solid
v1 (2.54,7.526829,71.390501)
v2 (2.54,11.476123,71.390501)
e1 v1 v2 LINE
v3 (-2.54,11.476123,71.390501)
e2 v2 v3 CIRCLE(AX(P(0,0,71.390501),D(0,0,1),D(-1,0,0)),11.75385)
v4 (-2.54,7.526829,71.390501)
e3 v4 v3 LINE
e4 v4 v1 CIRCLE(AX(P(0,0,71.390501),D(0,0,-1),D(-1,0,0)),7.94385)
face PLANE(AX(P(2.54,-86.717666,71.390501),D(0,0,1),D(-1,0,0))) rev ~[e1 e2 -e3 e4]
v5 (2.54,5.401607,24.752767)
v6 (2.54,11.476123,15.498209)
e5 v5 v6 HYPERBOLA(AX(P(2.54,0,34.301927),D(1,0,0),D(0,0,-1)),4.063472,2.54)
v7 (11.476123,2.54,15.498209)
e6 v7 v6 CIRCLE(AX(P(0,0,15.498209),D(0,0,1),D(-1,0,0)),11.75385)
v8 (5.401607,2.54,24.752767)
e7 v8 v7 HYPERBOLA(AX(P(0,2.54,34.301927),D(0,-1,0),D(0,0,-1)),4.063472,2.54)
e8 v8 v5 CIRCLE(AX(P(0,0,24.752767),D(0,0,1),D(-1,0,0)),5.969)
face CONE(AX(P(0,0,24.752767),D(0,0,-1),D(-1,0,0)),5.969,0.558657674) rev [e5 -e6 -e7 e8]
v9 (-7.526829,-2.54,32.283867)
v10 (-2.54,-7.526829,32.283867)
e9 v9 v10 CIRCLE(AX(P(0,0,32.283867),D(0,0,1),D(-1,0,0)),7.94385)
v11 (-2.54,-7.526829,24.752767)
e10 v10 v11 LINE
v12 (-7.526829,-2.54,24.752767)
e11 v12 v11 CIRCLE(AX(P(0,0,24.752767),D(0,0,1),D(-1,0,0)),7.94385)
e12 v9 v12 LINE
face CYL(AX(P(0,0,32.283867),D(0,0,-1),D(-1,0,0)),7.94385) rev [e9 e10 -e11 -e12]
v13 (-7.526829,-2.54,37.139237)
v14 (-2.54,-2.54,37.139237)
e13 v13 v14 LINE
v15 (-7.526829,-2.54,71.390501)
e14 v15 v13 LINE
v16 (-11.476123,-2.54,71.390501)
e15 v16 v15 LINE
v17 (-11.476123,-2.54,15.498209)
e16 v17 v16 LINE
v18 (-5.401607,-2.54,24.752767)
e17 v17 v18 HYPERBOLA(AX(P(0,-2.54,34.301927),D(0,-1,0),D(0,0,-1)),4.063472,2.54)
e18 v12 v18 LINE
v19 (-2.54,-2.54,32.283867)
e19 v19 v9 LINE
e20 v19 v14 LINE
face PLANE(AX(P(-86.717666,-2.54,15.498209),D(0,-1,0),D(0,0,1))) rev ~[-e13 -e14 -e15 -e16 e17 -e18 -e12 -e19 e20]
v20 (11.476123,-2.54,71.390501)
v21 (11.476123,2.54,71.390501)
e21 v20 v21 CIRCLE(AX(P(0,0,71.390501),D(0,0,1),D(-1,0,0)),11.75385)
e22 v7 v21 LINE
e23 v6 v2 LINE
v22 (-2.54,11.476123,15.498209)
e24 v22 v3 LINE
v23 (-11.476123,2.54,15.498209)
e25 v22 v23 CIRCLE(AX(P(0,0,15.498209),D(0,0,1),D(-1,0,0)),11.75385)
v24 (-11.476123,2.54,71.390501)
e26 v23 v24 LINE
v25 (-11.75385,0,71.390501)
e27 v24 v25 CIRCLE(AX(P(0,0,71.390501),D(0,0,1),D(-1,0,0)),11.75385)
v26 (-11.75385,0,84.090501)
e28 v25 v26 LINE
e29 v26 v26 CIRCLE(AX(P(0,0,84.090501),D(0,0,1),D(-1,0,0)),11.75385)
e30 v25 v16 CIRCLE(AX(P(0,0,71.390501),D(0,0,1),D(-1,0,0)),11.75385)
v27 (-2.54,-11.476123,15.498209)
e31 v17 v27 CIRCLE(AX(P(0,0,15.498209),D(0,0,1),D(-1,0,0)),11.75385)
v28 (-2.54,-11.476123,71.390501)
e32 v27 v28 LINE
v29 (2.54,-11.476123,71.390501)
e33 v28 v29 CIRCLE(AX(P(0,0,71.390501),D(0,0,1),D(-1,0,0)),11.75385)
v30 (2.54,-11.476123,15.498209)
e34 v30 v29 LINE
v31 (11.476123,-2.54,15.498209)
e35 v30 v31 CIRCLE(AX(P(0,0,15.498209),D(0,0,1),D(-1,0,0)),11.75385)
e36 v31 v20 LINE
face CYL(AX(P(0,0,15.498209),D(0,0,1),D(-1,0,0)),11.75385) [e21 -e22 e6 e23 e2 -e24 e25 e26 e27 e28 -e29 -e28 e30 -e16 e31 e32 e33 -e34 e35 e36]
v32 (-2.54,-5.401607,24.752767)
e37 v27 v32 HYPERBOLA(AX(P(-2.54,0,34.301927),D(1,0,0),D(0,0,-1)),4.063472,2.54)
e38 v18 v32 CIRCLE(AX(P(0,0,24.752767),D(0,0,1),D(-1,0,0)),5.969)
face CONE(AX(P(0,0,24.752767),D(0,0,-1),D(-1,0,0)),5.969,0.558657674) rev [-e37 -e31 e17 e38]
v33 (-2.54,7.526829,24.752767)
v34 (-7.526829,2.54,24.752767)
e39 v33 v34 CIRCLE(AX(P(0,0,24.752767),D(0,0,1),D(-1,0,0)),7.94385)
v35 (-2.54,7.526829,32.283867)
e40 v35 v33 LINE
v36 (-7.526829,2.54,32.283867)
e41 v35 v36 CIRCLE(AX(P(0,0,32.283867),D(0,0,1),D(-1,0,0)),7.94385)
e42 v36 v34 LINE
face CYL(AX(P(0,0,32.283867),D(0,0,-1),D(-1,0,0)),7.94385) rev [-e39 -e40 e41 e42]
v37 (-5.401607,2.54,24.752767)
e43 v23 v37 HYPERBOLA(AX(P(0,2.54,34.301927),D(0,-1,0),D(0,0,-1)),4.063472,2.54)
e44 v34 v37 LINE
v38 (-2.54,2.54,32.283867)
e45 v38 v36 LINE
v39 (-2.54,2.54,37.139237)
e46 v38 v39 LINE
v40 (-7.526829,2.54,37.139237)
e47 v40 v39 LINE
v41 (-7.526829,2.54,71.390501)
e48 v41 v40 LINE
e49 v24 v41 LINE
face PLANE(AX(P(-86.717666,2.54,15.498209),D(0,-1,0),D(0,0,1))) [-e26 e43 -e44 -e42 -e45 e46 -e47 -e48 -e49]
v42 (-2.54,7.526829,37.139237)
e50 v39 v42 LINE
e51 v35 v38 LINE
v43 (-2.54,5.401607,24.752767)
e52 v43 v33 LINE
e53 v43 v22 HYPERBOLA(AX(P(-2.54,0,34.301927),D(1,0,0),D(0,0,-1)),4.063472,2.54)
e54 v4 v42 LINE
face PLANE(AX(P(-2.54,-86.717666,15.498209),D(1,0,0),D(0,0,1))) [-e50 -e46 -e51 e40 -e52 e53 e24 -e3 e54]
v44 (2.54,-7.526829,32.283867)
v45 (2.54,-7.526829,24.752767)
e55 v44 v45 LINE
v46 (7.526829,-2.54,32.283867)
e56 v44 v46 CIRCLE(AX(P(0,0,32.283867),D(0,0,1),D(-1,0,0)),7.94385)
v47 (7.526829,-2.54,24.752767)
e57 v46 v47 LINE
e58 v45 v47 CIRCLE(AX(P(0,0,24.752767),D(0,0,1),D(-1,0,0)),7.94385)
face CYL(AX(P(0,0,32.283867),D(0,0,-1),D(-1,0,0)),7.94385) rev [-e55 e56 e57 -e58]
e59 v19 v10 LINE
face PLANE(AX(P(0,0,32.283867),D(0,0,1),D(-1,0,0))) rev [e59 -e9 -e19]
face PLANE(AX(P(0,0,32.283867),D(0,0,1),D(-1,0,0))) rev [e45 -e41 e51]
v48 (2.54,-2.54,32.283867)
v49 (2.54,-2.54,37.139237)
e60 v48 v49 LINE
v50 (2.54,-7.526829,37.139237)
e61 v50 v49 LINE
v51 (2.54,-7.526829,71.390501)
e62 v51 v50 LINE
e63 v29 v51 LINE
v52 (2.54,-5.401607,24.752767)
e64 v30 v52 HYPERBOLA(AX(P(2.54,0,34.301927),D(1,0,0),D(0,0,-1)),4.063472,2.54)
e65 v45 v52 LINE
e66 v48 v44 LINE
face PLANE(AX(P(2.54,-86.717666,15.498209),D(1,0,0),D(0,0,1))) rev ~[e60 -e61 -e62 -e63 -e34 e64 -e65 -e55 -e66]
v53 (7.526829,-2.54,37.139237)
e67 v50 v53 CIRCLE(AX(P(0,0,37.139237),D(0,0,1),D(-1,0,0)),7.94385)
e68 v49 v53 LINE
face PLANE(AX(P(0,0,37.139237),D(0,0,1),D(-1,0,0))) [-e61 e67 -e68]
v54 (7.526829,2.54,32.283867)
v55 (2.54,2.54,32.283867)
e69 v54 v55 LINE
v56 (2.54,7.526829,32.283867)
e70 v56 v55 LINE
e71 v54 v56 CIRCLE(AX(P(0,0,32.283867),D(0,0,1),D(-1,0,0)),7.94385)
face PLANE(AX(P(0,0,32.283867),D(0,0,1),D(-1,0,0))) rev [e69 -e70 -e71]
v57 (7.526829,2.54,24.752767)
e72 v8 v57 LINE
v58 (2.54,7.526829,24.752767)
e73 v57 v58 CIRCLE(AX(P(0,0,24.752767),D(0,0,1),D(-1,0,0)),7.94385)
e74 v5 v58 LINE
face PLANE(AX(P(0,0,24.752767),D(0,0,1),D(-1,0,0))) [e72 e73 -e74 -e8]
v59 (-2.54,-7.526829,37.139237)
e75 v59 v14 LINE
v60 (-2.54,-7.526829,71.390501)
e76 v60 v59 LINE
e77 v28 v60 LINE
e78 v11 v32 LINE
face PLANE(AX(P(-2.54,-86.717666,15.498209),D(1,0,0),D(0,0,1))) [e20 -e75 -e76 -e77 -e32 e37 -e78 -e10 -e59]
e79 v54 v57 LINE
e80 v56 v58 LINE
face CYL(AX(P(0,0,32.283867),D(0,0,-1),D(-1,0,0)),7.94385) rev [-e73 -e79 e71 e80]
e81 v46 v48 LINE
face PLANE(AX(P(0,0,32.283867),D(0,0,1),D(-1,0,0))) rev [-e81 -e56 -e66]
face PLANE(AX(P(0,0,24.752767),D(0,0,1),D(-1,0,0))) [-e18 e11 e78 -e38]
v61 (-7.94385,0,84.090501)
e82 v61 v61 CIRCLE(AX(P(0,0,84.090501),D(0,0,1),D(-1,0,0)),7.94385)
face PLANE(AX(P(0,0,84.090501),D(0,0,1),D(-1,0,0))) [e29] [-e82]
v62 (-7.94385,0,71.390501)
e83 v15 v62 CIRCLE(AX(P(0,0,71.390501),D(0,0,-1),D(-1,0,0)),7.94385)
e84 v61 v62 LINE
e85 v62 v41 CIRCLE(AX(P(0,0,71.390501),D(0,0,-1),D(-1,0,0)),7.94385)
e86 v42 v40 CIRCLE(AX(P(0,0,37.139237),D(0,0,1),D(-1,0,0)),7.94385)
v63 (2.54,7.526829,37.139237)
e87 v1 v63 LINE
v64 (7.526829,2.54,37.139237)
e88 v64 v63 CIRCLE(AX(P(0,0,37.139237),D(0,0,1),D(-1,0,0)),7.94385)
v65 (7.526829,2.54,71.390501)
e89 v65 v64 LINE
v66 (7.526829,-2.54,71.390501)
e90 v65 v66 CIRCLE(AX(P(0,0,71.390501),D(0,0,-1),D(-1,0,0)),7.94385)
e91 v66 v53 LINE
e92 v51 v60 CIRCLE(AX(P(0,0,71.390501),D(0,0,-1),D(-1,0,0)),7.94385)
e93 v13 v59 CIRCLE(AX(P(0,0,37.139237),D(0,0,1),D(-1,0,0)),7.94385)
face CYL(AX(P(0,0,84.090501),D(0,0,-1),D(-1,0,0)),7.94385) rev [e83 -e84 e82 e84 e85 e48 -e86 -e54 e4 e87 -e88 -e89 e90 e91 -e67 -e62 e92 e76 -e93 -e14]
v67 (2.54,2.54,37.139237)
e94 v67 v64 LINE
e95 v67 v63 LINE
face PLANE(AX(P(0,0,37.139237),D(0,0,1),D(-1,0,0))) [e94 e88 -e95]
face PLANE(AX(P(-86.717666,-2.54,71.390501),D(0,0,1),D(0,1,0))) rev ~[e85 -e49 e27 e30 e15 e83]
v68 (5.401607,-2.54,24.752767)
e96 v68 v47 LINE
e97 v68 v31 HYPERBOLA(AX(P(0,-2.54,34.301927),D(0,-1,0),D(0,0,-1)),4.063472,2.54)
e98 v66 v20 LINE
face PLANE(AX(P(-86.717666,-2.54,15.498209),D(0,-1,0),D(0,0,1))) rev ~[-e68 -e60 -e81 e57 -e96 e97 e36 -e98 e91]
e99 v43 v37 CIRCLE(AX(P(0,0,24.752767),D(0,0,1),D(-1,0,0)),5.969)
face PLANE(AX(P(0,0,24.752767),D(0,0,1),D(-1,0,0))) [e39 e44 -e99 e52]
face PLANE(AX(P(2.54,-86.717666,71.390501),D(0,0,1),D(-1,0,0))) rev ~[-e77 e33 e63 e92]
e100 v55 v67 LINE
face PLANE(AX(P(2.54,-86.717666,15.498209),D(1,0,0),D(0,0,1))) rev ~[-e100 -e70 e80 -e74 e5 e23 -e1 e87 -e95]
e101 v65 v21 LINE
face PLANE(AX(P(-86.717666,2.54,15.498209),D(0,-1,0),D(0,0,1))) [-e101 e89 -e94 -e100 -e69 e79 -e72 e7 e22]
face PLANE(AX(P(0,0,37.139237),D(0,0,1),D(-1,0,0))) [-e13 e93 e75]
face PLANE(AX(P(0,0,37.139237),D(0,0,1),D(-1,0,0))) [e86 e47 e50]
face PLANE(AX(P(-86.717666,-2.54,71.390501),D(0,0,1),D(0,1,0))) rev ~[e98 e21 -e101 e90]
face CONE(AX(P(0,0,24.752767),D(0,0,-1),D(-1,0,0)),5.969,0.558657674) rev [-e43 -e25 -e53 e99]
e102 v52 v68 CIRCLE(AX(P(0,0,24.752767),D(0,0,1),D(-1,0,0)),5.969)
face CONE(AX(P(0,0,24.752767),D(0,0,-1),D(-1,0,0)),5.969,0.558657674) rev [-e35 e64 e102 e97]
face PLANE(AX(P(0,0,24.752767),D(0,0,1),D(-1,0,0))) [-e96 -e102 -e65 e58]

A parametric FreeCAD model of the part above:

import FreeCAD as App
import Part
import Sketcher
from FreeCAD import Vector
Q = App.Units.Quantity

doc = App.newDocument("Part")
params = doc.addObject("Spreadsheet::Sheet", "Params")
for row, (alias, value) in enumerate([
    ("sketch1_width", "0.15 in"),
    ("revolution_angle", "360 deg"),
    ("sketch2_width", "0.2 in"),
    ("sketch3_width", "0.2 in"),
], start=1):
    params.set(f"A{row}", alias)
    params.set(f"B{row}", "=" + value)
    params.setAlias(f"B{row}", alias)

body = doc.addObject("PartDesign::Body", "Body")

# Sketch on YZ plane
sketch1 = body.newObject("Sketcher::SketchObject", "Sketch")
sketch1.AttachmentSupport = (doc.getObject("YZ_Plane"), [""])
sketch1.MapMode = "FlatFace"
sketch1.addGeometry(Part.LineSegment(Vector(11.8, 15.5, 0), Vector(11.8, 84.1, 0)), False)
sketch1.addGeometry(Part.LineSegment(Vector(11.8, 84.1, 0), Vector(7.9, 84.1, 0)), False)
sketch1.addGeometry(Part.LineSegment(Vector(7.9, 84.1, 0), Vector(7.9, 37.1, 0)), False)
sketch1.addGeometry(Part.LineSegment(Vector(7.9, 37.1, 0), Vector(3.3, 37.1, 0)), False)
sketch1.addGeometry(Part.LineSegment(Vector(3.3, 37.1, 0), Vector(3.3, 32.3, 0)), False)
sketch1.addGeometry(Part.LineSegment(Vector(3.3, 32.3, 0), Vector(7.9, 32.3, 0)), False)
sketch1.addGeometry(Part.LineSegment(Vector(7.9, 32.3, 0), Vector(7.9, 24.8, 0)), False)
sketch1.addGeometry(Part.LineSegment(Vector(7.9, 24.8, 0), Vector(6, 24.8, 0)), False)
sketch1.addGeometry(Part.LineSegment(Vector(6, 24.8, 0), Vector(11.8, 15.5, 0)), False)
sketch1.addConstraint(Sketcher.Constraint("Coincident", 0, 2, 1, 1))
sketch1.addConstraint(Sketcher.Constraint("Coincident", 1, 2, 2, 1))
sketch1.addConstraint(Sketcher.Constraint("Coincident", 2, 2, 3, 1))
sketch1.addConstraint(Sketcher.Constraint("Coincident", 3, 2, 4, 1))
sketch1.addConstraint(Sketcher.Constraint("Coincident", 4, 2, 5, 1))
sketch1.addConstraint(Sketcher.Constraint("Coincident", 5, 2, 6, 1))
sketch1.addConstraint(Sketcher.Constraint("Coincident", 6, 2, 7, 1))
sketch1.addConstraint(Sketcher.Constraint("Coincident", 7, 2, 8, 1))
sketch1.addConstraint(Sketcher.Constraint("Coincident", 8, 2, 0, 1))
sketch1.addConstraint(Sketcher.Constraint("Vertical", 0))
sketch1.addConstraint(Sketcher.Constraint("Horizontal", 1))
sketch1.addConstraint(Sketcher.Constraint("Vertical", 2))
sketch1.addConstraint(Sketcher.Constraint("Horizontal", 3))
sketch1.addConstraint(Sketcher.Constraint("Vertical", 4))
sketch1.addConstraint(Sketcher.Constraint("Horizontal", 5))
sketch1.addConstraint(Sketcher.Constraint("Vertical", 6))
sketch1.addConstraint(Sketcher.Constraint("Horizontal", 7))
sketch1.addConstraint(Sketcher.Constraint("Vertical", 2, 2, 5, 2))
sketch1.addConstraint(Sketcher.Constraint("DistanceX", 1, 2, 1, 1, Q("0.15 in")))
sketch1.addConstraint(Sketcher.Constraint("DistanceY", 6, 2, 6, 1, Q("0.2965 in")))
sketch1.addConstraint(Sketcher.Constraint("DistanceX", -1, 1, 7, 2, Q("0.235 in")))
sketch1.addConstraint(Sketcher.Constraint("DistanceX", 3, 2, 3, 1, 4.685171))
sketch1.addConstraint(Sketcher.Constraint("DistanceX", 7, 2, 7, 1, 1.97485))
sketch1.addConstraint(Sketcher.Constraint("DistanceY", 0, 1, 0, 2, 68.592292))
sketch1.addConstraint(Sketcher.Constraint("DistanceY", 4, 2, 4, 1, 4.85537))
sketch1.addConstraint(Sketcher.Constraint("DistanceY", -1, 1, 0, 2, 84.090501))
sketch1.addConstraint(Sketcher.Constraint("DistanceY", 2, 2, 2, 1, 46.951264))
sketch1.setExpression("Constraints[18]", "Params.sketch1_width")
revolution = body.newObject("PartDesign::Revolution", "Revolution")
revolution.Profile = sketch1
revolution.ReferenceAxis = (sketch1, ["V_Axis"])
revolution.setExpression("Angle", "Params.revolution_angle")

# Sketch on YZ plane
sketch2 = body.newObject("Sketcher::SketchObject", "Sketch001")
sketch2.AttachmentSupport = (doc.getObject("YZ_Plane"), [""])
sketch2.MapMode = "FlatFace"
sketch2.addGeometry(Part.LineSegment(Vector(-3, 71, 0), Vector(-3, 15, 0)), False)
sketch2.addGeometry(Part.LineSegment(Vector(-3, 15, 0), Vector(3, 15, 0)), False)
sketch2.addGeometry(Part.LineSegment(Vector(3, 15, 0), Vector(3, 71, 0)), False)
sketch2.addGeometry(Part.LineSegment(Vector(3, 71, 0), Vector(-3, 71, 0)), False)
sketch2.addConstraint(Sketcher.Constraint("Coincident", 0, 2, 1, 1))
sketch2.addConstraint(Sketcher.Constraint("Coincident", 1, 2, 2, 1))
sketch2.addConstraint(Sketcher.Constraint("Coincident", 2, 2, 3, 1))
sketch2.addConstraint(Sketcher.Constraint("Coincident", 3, 2, 0, 1))
sketch2.addConstraint(Sketcher.Constraint("Vertical", 0))
sketch2.addConstraint(Sketcher.Constraint("Horizontal", 1))
sketch2.addConstraint(Sketcher.Constraint("Vertical", 2))
sketch2.addConstraint(Sketcher.Constraint("Horizontal", 3))
sketch2.addConstraint(Sketcher.Constraint("DistanceX", 1, 1, 1, 2, Q("0.2 in")))
sketch2.addConstraint(Sketcher.Constraint("DistanceX", 0, 2, -1, 1, Q("0.1 in")))
sketch2.addConstraint(Sketcher.Constraint("DistanceY", 0, 2, 0, 1, 55.892292))
sketch2.addConstraint(Sketcher.Constraint("DistanceY", -1, 1, 2, 2, 71.390501))
sketch2.setExpression("Constraints[8]", "Params.sketch2_width")
pocket1 = body.newObject("PartDesign::Pocket", "Pocket")
pocket1.Profile = sketch2
pocket1.Type = "ThroughAll"
pocket1.Midplane = True

# Sketch on XZ plane
sketch3 = body.newObject("Sketcher::SketchObject", "Sketch002")
sketch3.AttachmentSupport = (doc.getObject("XZ_Plane"), [""])
sketch3.MapMode = "FlatFace"
sketch3.addGeometry(Part.LineSegment(Vector(3, 71, 0), Vector(3, 15, 0)), False)
sketch3.addGeometry(Part.LineSegment(Vector(3, 15, 0), Vector(-3, 15, 0)), False)
sketch3.addGeometry(Part.LineSegment(Vector(-3, 15, 0), Vector(-3, 71, 0)), False)
sketch3.addGeometry(Part.LineSegment(Vector(-3, 71, 0), Vector(3, 71, 0)), False)
sketch3.addConstraint(Sketcher.Constraint("Coincident", 0, 2, 1, 1))
sketch3.addConstraint(Sketcher.Constraint("Coincident", 1, 2, 2, 1))
sketch3.addConstraint(Sketcher.Constraint("Coincident", 2, 2, 3, 1))
sketch3.addConstraint(Sketcher.Constraint("Coincident", 3, 2, 0, 1))
sketch3.addConstraint(Sketcher.Constraint("Vertical", 0))
sketch3.addConstraint(Sketcher.Constraint("Horizontal", 1))
sketch3.addConstraint(Sketcher.Constraint("Vertical", 2))
sketch3.addConstraint(Sketcher.Constraint("Horizontal", 3))
sketch3.addConstraint(Sketcher.Constraint("DistanceX", 1, 2, 1, 1, Q("0.2 in")))
sketch3.addConstraint(Sketcher.Constraint("DistanceX", -1, 1, 0, 2, Q("0.1 in")))
sketch3.addConstraint(Sketcher.Constraint("DistanceY", 0, 2, 0, 1, 55.892292))
sketch3.addConstraint(Sketcher.Constraint("DistanceY", -1, 1, 2, 2, 71.390501))
sketch3.setExpression("Constraints[8]", "Params.sketch3_width")
pocket2 = body.newObject("PartDesign::Pocket", "Pocket001")
pocket2.Profile = sketch3
pocket2.Type = "ThroughAll"
pocket2.Midplane = True

doc.recompute()
